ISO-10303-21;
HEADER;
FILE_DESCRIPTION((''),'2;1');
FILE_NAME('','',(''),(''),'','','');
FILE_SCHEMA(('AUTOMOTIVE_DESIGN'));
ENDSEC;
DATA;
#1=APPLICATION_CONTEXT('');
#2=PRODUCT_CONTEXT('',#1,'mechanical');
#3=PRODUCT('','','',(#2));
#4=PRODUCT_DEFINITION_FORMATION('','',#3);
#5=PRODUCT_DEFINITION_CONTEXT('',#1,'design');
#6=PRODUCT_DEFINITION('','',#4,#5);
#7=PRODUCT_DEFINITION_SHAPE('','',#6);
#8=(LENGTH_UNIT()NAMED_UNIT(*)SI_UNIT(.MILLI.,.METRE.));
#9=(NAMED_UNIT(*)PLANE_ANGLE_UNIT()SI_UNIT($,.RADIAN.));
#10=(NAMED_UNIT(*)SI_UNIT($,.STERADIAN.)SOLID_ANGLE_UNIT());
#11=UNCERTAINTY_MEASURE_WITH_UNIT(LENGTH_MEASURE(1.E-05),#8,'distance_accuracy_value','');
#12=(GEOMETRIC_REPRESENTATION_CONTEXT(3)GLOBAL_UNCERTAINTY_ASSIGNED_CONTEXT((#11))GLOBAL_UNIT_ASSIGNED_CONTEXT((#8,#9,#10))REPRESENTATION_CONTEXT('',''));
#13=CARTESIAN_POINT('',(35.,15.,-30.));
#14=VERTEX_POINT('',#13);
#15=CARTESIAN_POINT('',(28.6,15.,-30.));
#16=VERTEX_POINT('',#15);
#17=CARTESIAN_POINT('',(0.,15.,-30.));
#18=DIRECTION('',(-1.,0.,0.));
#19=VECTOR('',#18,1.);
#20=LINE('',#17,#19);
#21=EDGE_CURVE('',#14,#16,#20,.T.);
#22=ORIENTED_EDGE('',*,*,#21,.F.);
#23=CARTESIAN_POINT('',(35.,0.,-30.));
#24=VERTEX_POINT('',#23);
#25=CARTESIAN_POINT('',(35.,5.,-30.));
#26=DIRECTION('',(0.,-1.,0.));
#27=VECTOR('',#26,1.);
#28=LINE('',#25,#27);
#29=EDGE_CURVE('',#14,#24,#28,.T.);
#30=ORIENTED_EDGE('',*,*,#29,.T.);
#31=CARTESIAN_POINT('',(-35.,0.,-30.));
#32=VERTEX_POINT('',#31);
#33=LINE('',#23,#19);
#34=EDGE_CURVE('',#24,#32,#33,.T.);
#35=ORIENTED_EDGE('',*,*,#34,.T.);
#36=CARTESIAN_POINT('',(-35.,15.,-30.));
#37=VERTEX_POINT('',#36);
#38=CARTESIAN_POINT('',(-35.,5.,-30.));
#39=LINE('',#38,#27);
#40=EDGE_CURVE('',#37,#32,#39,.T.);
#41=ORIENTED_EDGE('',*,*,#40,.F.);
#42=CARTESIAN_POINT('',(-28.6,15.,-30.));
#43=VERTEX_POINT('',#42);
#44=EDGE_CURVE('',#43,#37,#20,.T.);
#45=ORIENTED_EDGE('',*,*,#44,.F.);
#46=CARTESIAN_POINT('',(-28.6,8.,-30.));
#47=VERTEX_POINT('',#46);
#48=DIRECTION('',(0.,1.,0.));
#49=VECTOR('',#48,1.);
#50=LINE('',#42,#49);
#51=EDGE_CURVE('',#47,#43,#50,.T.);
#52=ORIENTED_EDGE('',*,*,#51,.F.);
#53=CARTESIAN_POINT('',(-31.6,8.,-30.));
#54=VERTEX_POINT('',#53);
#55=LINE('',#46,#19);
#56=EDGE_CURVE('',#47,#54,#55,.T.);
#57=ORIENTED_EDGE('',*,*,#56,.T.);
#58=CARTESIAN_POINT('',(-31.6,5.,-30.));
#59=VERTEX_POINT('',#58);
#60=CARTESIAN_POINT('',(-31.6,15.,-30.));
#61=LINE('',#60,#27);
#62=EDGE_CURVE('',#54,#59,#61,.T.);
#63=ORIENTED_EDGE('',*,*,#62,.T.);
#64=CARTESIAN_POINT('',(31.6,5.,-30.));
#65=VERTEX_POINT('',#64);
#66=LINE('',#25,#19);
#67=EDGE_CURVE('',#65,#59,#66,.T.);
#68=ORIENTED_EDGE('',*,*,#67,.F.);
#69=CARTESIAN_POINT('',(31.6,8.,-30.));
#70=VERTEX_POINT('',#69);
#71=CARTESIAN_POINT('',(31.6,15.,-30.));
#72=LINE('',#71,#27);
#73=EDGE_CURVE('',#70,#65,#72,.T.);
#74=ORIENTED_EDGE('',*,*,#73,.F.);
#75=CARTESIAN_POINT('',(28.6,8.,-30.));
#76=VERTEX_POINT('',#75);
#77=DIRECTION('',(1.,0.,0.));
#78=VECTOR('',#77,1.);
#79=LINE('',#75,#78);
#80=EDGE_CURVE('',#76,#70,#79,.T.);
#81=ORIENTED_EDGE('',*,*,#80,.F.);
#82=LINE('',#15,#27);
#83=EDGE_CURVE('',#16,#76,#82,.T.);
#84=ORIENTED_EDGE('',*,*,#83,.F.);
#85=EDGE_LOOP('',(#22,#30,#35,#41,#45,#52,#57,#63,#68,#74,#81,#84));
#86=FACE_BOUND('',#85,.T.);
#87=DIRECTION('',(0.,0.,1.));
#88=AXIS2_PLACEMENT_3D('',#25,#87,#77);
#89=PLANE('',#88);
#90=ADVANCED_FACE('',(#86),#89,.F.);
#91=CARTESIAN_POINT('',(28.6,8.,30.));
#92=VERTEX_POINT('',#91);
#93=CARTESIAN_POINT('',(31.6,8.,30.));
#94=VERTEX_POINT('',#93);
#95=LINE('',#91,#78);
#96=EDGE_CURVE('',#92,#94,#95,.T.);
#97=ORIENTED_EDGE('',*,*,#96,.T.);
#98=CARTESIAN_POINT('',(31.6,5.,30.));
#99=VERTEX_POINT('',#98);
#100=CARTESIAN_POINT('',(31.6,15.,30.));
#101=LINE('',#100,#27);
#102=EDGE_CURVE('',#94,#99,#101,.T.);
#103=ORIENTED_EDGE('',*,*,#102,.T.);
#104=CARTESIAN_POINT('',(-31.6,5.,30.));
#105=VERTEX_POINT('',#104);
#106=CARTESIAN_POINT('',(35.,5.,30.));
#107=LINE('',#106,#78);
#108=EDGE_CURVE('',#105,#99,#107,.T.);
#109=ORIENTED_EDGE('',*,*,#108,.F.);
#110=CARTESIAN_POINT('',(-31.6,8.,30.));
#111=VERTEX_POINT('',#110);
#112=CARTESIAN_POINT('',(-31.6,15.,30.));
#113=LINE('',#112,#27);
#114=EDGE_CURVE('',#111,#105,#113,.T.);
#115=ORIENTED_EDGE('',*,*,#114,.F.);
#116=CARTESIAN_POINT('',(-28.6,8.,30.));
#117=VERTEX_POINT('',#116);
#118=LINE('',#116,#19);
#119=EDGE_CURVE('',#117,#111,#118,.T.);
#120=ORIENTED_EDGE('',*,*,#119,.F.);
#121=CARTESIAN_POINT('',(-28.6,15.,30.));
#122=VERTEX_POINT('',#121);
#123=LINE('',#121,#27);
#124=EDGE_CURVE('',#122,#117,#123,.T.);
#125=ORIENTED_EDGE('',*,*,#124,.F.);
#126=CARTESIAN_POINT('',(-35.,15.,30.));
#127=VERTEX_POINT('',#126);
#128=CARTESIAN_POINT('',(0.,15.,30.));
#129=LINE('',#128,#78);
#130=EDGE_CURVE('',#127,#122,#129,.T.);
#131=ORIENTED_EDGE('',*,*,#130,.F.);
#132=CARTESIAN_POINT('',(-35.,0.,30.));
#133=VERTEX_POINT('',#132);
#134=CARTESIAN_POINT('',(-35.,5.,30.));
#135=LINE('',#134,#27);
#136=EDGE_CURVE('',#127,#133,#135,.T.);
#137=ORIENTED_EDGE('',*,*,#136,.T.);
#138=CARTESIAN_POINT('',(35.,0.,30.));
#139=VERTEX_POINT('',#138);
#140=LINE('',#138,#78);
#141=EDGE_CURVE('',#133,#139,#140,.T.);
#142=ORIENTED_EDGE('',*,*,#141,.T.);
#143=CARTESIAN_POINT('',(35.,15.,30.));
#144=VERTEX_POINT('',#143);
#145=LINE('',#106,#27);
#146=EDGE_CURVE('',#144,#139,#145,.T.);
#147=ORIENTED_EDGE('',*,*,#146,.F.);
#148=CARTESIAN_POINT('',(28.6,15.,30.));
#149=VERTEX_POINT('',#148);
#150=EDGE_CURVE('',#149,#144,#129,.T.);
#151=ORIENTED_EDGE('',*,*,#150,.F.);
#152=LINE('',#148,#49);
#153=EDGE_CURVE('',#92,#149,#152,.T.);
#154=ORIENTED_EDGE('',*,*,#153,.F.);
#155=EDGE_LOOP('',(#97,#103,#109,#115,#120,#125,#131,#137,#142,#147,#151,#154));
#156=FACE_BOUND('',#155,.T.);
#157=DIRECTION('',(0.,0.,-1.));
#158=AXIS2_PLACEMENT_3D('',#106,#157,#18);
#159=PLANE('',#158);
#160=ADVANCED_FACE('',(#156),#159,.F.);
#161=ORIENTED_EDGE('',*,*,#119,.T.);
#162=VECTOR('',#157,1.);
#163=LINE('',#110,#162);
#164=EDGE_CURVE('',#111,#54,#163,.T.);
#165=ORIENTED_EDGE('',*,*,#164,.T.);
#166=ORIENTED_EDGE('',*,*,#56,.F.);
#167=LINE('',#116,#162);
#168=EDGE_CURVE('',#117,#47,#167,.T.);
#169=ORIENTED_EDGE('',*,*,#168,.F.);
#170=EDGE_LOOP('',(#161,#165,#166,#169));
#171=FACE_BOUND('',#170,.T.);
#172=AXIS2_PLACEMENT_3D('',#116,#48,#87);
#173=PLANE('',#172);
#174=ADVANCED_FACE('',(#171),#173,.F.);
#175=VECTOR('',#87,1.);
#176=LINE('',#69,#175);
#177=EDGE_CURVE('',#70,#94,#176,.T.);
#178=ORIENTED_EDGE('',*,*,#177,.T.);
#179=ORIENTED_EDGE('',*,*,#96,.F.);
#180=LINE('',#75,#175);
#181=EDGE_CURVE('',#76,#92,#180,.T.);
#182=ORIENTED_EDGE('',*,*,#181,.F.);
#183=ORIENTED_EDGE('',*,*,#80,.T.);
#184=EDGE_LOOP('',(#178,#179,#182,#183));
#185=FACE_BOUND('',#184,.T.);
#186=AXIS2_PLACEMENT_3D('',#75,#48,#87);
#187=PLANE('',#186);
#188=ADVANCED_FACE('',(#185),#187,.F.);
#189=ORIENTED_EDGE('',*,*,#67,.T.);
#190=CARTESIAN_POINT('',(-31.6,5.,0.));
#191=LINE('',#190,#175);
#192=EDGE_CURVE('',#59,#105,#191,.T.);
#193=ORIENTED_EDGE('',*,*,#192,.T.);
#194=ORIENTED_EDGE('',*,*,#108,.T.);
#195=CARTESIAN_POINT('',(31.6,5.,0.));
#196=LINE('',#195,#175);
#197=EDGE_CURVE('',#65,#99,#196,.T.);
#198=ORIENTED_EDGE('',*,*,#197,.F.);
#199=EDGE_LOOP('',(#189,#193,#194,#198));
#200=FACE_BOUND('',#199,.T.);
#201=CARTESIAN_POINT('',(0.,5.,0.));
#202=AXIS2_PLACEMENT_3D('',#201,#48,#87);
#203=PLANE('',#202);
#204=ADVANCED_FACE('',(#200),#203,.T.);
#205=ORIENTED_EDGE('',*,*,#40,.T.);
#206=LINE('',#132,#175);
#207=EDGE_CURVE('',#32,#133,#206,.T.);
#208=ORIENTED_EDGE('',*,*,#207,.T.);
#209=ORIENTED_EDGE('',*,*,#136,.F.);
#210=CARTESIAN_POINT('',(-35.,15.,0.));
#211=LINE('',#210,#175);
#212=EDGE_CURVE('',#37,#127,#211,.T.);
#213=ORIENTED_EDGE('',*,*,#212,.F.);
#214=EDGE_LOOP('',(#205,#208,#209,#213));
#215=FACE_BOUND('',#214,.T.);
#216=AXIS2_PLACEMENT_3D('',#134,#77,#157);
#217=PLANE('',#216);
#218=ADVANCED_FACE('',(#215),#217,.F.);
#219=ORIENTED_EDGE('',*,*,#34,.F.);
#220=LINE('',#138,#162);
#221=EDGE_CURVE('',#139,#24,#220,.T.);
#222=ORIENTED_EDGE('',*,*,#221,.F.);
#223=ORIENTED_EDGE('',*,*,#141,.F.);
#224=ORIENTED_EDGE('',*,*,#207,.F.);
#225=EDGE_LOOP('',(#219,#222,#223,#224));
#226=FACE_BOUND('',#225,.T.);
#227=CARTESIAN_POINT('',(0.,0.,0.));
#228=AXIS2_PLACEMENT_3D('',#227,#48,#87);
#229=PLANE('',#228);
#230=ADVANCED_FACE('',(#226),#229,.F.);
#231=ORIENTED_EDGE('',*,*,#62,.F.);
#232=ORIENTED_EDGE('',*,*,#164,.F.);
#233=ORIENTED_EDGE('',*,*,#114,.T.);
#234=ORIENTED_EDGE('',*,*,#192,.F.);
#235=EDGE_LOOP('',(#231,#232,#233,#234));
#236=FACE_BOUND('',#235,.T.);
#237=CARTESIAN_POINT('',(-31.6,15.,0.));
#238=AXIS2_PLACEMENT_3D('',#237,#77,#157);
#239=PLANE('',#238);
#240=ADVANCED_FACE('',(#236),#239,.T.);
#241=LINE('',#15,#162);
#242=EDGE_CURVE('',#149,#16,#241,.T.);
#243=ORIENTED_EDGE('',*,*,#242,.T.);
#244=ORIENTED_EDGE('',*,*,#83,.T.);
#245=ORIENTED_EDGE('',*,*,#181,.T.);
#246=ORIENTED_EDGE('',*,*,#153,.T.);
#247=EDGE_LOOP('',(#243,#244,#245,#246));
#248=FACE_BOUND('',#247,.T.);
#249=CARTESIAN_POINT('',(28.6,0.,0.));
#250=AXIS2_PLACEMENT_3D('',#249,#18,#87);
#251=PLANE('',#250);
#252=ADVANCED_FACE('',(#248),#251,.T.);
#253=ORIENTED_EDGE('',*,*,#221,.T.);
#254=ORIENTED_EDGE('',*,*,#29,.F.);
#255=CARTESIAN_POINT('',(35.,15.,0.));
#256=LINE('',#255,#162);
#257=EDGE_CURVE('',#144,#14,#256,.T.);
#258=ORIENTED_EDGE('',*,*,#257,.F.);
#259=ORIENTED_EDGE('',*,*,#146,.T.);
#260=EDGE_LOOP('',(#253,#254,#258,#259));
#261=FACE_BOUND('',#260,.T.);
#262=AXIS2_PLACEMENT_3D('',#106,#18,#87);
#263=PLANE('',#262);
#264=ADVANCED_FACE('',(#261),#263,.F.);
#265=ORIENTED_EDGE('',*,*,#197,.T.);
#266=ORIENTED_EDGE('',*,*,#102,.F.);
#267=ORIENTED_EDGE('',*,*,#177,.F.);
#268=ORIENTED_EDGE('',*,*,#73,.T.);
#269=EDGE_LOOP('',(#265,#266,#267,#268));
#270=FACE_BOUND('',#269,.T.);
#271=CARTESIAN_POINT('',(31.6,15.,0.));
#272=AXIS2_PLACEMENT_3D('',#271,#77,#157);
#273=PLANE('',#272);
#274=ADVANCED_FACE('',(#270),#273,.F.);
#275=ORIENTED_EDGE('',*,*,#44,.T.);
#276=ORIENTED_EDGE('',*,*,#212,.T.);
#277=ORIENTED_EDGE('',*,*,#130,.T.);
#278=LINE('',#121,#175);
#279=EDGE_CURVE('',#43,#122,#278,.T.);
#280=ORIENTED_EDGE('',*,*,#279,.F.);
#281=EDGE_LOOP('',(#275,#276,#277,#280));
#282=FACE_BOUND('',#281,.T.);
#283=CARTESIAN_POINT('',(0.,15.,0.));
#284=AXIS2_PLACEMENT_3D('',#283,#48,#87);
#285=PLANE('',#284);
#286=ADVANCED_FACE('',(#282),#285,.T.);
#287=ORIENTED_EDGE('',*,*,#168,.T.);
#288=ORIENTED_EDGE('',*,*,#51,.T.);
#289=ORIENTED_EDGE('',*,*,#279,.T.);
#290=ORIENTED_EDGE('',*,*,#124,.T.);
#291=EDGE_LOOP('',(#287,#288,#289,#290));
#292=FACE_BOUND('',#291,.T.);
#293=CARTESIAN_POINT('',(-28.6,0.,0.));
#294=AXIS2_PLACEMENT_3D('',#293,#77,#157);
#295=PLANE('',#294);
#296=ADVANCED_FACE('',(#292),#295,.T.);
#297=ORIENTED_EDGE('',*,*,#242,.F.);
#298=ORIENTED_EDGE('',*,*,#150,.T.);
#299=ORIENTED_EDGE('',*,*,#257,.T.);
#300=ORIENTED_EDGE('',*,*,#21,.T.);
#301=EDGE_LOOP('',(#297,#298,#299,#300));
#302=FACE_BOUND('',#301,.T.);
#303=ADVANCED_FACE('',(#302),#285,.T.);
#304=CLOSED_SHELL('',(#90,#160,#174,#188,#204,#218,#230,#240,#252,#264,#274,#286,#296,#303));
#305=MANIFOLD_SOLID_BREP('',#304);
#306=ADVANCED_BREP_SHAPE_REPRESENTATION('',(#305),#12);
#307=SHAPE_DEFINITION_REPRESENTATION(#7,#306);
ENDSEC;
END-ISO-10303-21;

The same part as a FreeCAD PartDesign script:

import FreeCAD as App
import Part
import Sketcher
from FreeCAD import Vector

doc = App.newDocument("Part")
params = doc.addObject("Spreadsheet::Sheet", "Params")
for row, (alias, value) in enumerate([
    ("sketch1_width", "70 mm"),
    ("sketch1_height", "60 mm"),
    ("pad1_length", "5 mm"),
    ("sketch2_height", "60 mm"),
    ("sketch2_width", "3.4 mm"),
    ("pad2_length", "10 mm"),
    ("sketch3_width", "7 mm"),
    ("sketch3_height", "60 mm"),
    ("pad3_length", "3 mm"),
    ("sketch4_width", "7 mm"),
    ("sketch4_height", "60 mm"),
    ("pad4_length", "3 mm"),
], start=1):
    params.set(f"A{row}", alias)
    params.set(f"B{row}", "=" + value)
    params.setAlias(f"B{row}", alias)

body = doc.addObject("PartDesign::Body", "Body")

sketch1 = body.newObject("Sketcher::SketchObject", "Sketch")
sketch1.AttachmentSupport = (doc.getObject("XZ_Plane"), [""])
sketch1.MapMode = "FlatFace"
sketch1.addGeometry([
    Part.LineSegment(Vector(-35, -30, 0), Vector(-35, 30, 0)),
    Part.LineSegment(Vector(-35, 30, 0), Vector(35, 30, 0)),
    Part.LineSegment(Vector(35, 30, 0), Vector(35, -30, 0)),
    Part.LineSegment(Vector(35, -30, 0), Vector(-35, -30, 0)),
], False)
sketch1.addConstraint([
    Sketcher.Constraint("Coincident", 0, 2, 1, 1),
    Sketcher.Constraint("Coincident", 1, 2, 2, 1),
    Sketcher.Constraint("Coincident", 2, 2, 3, 1),
    Sketcher.Constraint("Coincident", 3, 2, 0, 1),
    Sketcher.Constraint("Vertical", 0),
    Sketcher.Constraint("Horizontal", 1),
    Sketcher.Constraint("Vertical", 2),
    Sketcher.Constraint("Horizontal", 3),
    Sketcher.Constraint("Symmetric", 0, 2, 2, 2, -1, 1),
    Sketcher.Constraint("DistanceX", 1, 1, 1, 2, 70.0),
    Sketcher.Constraint("DistanceY", 0, 1, 0, 2, 60.0),
])
sketch1.setExpression("Constraints[9]", "Params.sketch1_width")
sketch1.setExpression("Constraints[10]", "Params.sketch1_height")
pad1 = body.newObject("PartDesign::Pad", "Pad")
pad1.Profile = sketch1
pad1.setExpression("Length", "Params.pad1_length")
pad1.Reversed = True

sketch2 = body.newObject("Sketcher::SketchObject", "Sketch001")
sketch2.AttachmentSupport = (doc.getObject("XZ_Plane"), [""])
sketch2.MapMode = "FlatFace"
sketch2.AttachmentOffset = App.Placement(Vector(0, 0, -5), App.Rotation())
sketch2.addGeometry([
    Part.LineSegment(Vector(-35, -30, 0), Vector(-35, 30, 0)),
    Part.LineSegment(Vector(-35, 30, 0), Vector(-31.6, 30, 0)),
    Part.LineSegment(Vector(-31.6, 30, 0), Vector(-31.6, -30, 0)),
    Part.LineSegment(Vector(-31.6, -30, 0), Vector(-35, -30, 0)),
    Part.LineSegment(Vector(31.6, -30, 0), Vector(31.6, 30, 0)),
    Part.LineSegment(Vector(31.6, 30, 0), Vector(35, 30, 0)),
    Part.LineSegment(Vector(35, 30, 0), Vector(35, -30, 0)),
    Part.LineSegment(Vector(35, -30, 0), Vector(31.6, -30, 0)),
], False)
sketch2.addConstraint([
    Sketcher.Constraint("Coincident", 0, 2, 1, 1),
    Sketcher.Constraint("Coincident", 1, 2, 2, 1),
    Sketcher.Constraint("Coincident", 2, 2, 3, 1),
    Sketcher.Constraint("Coincident", 3, 2, 0, 1),
    Sketcher.Constraint("Coincident", 4, 2, 5, 1),
    Sketcher.Constraint("Coincident", 5, 2, 6, 1),
    Sketcher.Constraint("Coincident", 6, 2, 7, 1),
    Sketcher.Constraint("Coincident", 7, 2, 4, 1),
    Sketcher.Constraint("Vertical", 0),
    Sketcher.Constraint("Horizontal", 1),
    Sketcher.Constraint("Vertical", 2),
    Sketcher.Constraint("Horizontal", 3),
    Sketcher.Constraint("Vertical", 4),
    Sketcher.Constraint("Horizontal", 5),
    Sketcher.Constraint("Vertical", 6),
    Sketcher.Constraint("Horizontal", 7),
    Sketcher.Constraint("Symmetric", 2, 2, 4, 2, -1, 1),
    Sketcher.Constraint("Symmetric", 0, 2, 6, 2, -1, 1),
    Sketcher.Constraint("Horizontal", 1, 2, 4, 2),
    Sketcher.Constraint("DistanceY", 0, 1, 0, 2, 60.0),
    Sketcher.Constraint("DistanceX", 1, 1, 1, 2, 3.4),
    Sketcher.Constraint("DistanceX", 0, 2, -1, 1, 35.0),
])
sketch2.setExpression("Constraints[19]", "Params.sketch2_height")
sketch2.setExpression("Constraints[20]", "Params.sketch2_width")
pad2 = body.newObject("PartDesign::Pad", "Pad001")
pad2.Profile = sketch2
pad2.setExpression("Length", "Params.pad2_length")
pad2.Reversed = True

sketch3 = body.newObject("Sketcher::SketchObject", "Sketch002")
sketch3.AttachmentSupport = (doc.getObject("YZ_Plane"), [""])
sketch3.MapMode = "FlatFace"
sketch3.AttachmentOffset = App.Placement(Vector(0, 0, -31.6), App.Rotation())
sketch3.addGeometry([
    Part.LineSegment(Vector(15, 30, 0), Vector(8, 30, 0)),
    Part.LineSegment(Vector(8, 30, 0), Vector(8, -30, 0)),
    Part.LineSegment(Vector(8, -30, 0), Vector(15, -30, 0)),
    Part.LineSegment(Vector(15, -30, 0), Vector(15, 30, 0)),
], False)
sketch3.addConstraint([
    Sketcher.Constraint("Coincident", 0, 2, 1, 1),
    Sketcher.Constraint("Coincident", 1, 2, 2, 1),
    Sketcher.Constraint("Coincident", 2, 2, 3, 1),
    Sketcher.Constraint("Coincident", 3, 2, 0, 1),
    Sketcher.Constraint("Horizontal", 0),
    Sketcher.Constraint("Vertical", 1),
    Sketcher.Constraint("Horizontal", 2),
    Sketcher.Constraint("Vertical", 3),
    Sketcher.Constraint("DistanceX", 0, 2, 0, 1, 7.0),
    Sketcher.Constraint("DistanceY", 1, 2, 1, 1, 60.0),
    Sketcher.Constraint("DistanceX", -1, 1, 0, 2, 8.0),
    Sketcher.Constraint("DistanceY", -1, 1, 0, 2, 30.0),
])
sketch3.setExpression("Constraints[8]", "Params.sketch3_width")
sketch3.setExpression("Constraints[9]", "Params.sketch3_height")
pad3 = body.newObject("PartDesign::Pad", "Pad002")
pad3.Profile = sketch3
pad3.setExpression("Length", "Params.pad3_length")

sketch4 = body.newObject("Sketcher::SketchObject", "Sketch003")
sketch4.AttachmentSupport = (doc.getObject("YZ_Plane"), [""])
sketch4.MapMode = "FlatFace"
sketch4.AttachmentOffset = App.Placement(Vector(0, 0, 31.6), App.Rotation())
sketch4.addGeometry([
    Part.LineSegment(Vector(15, -30, 0), Vector(8, -30, 0)),
    Part.LineSegment(Vector(8, -30, 0), Vector(8, 30, 0)),
    Part.LineSegment(Vector(8, 30, 0), Vector(15, 30, 0)),
    Part.LineSegment(Vector(15, 30, 0), Vector(15, -30, 0)),
], False)
sketch4.addConstraint([
    Sketcher.Constraint("Coincident", 0, 2, 1, 1),
    Sketcher.Constraint("Coincident", 1, 2, 2, 1),
    Sketcher.Constraint("Coincident", 2, 2, 3, 1),
    Sketcher.Constraint("Coincident", 3, 2, 0, 1),
    Sketcher.Constraint("Horizontal", 0),
    Sketcher.Constraint("Vertical", 1),
    Sketcher.Constraint("Horizontal", 2),
    Sketcher.Constraint("Vertical", 3),
    Sketcher.Constraint("DistanceX", 0, 2, 0, 1, 7.0),
    Sketcher.Constraint("DistanceY", 1, 1, 1, 2, 60.0),
    Sketcher.Constraint("DistanceX", -1, 1, 0, 2, 8.0),
    Sketcher.Constraint("DistanceY", 0, 2, -1, 1, 30.0),
])
sketch4.setExpression("Constraints[8]", "Params.sketch4_width")
sketch4.setExpression("Constraints[9]", "Params.sketch4_height")
pad4 = body.newObject("PartDesign::Pad", "Pad003")
pad4.Profile = sketch4
pad4.setExpression("Length", "Params.pad4_length")
pad4.Reversed = True

doc.recompute()
